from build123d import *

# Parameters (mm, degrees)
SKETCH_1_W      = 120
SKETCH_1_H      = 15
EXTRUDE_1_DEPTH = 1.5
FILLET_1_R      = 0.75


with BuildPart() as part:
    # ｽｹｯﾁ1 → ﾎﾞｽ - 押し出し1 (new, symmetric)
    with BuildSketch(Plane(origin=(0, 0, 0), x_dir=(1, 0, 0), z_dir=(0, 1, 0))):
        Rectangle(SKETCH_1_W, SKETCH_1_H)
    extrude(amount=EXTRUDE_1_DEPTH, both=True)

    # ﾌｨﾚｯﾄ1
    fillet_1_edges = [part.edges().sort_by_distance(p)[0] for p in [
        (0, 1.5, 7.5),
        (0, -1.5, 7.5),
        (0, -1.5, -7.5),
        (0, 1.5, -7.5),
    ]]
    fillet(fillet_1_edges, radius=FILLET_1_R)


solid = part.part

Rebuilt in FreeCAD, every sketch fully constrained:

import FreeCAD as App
import Part
import Sketcher


def edges_at(feature, points):
    """Names of the edges that pass closest to the given points."""
    edges = feature.Shape.Edges
    near = lambda p: min(range(len(edges)), key=lambda i: edges[i].distToShape(Part.Vertex(*p))[0])
    return sorted({f"Edge{near(p) + 1}" for p in points})

doc = App.newDocument("Part")
body = doc.addObject("PartDesign::Body", "Body")

# Sketch on XZ plane
sketch1 = body.newObject("Sketcher::SketchObject", "Sketch")
sketch1.AttachmentSupport = (doc.getObject("XZ_Plane"), [""])
sketch1.MapMode = "FlatFace"
sketch1.addGeometry([
    Part.LineSegment(App.Vector(-60, -7.5, 0), App.Vector(-60, 7.5, 0)),
    Part.LineSegment(App.Vector(-60, 7.5, 0), App.Vector(60, 7.5, 0)),
    Part.LineSegment(App.Vector(60, 7.5, 0), App.Vector(60, -7.5, 0)),
    Part.LineSegment(App.Vector(60, -7.5, 0), App.Vector(-60, -7.5, 0)),
], False)
sketch1.addConstraint([
    Sketcher.Constraint("Coincident", 0, 2, 1, 1),
    Sketcher.Constraint("Coincident", 1, 2, 2, 1),
    Sketcher.Constraint("Coincident", 2, 2, 3, 1),
    Sketcher.Constraint("Coincident", 3, 2, 0, 1),
    Sketcher.Constraint("Vertical", 0),
    Sketcher.Constraint("Horizontal", 1),
    Sketcher.Constraint("Vertical", 2),
    Sketcher.Constraint("Horizontal", 3),
    Sketcher.Constraint("Symmetric", 0, 2, 2, 2, -1, 1),
    Sketcher.Constraint("DistanceX", 1, 1, 1, 2, 120.0),
    Sketcher.Constraint("DistanceY", 0, 1, 0, 2, 15.0),
])
pad1 = body.newObject("PartDesign::Pad", "Pad")
pad1.Profile = sketch1
pad1.Length = 3
pad1.Midplane = True
doc.recompute()

fillet = body.newObject("PartDesign::Fillet", "Fillet")
fillet.Base = (pad1, edges_at(pad1, [
    (0, 1.5, 7.5),
    (0, -1.5, 7.5),
    (0, -1.5, -7.5),
    (0, 1.5, -7.5),
]))
fillet.Radius = 0.75

doc.recompute()
